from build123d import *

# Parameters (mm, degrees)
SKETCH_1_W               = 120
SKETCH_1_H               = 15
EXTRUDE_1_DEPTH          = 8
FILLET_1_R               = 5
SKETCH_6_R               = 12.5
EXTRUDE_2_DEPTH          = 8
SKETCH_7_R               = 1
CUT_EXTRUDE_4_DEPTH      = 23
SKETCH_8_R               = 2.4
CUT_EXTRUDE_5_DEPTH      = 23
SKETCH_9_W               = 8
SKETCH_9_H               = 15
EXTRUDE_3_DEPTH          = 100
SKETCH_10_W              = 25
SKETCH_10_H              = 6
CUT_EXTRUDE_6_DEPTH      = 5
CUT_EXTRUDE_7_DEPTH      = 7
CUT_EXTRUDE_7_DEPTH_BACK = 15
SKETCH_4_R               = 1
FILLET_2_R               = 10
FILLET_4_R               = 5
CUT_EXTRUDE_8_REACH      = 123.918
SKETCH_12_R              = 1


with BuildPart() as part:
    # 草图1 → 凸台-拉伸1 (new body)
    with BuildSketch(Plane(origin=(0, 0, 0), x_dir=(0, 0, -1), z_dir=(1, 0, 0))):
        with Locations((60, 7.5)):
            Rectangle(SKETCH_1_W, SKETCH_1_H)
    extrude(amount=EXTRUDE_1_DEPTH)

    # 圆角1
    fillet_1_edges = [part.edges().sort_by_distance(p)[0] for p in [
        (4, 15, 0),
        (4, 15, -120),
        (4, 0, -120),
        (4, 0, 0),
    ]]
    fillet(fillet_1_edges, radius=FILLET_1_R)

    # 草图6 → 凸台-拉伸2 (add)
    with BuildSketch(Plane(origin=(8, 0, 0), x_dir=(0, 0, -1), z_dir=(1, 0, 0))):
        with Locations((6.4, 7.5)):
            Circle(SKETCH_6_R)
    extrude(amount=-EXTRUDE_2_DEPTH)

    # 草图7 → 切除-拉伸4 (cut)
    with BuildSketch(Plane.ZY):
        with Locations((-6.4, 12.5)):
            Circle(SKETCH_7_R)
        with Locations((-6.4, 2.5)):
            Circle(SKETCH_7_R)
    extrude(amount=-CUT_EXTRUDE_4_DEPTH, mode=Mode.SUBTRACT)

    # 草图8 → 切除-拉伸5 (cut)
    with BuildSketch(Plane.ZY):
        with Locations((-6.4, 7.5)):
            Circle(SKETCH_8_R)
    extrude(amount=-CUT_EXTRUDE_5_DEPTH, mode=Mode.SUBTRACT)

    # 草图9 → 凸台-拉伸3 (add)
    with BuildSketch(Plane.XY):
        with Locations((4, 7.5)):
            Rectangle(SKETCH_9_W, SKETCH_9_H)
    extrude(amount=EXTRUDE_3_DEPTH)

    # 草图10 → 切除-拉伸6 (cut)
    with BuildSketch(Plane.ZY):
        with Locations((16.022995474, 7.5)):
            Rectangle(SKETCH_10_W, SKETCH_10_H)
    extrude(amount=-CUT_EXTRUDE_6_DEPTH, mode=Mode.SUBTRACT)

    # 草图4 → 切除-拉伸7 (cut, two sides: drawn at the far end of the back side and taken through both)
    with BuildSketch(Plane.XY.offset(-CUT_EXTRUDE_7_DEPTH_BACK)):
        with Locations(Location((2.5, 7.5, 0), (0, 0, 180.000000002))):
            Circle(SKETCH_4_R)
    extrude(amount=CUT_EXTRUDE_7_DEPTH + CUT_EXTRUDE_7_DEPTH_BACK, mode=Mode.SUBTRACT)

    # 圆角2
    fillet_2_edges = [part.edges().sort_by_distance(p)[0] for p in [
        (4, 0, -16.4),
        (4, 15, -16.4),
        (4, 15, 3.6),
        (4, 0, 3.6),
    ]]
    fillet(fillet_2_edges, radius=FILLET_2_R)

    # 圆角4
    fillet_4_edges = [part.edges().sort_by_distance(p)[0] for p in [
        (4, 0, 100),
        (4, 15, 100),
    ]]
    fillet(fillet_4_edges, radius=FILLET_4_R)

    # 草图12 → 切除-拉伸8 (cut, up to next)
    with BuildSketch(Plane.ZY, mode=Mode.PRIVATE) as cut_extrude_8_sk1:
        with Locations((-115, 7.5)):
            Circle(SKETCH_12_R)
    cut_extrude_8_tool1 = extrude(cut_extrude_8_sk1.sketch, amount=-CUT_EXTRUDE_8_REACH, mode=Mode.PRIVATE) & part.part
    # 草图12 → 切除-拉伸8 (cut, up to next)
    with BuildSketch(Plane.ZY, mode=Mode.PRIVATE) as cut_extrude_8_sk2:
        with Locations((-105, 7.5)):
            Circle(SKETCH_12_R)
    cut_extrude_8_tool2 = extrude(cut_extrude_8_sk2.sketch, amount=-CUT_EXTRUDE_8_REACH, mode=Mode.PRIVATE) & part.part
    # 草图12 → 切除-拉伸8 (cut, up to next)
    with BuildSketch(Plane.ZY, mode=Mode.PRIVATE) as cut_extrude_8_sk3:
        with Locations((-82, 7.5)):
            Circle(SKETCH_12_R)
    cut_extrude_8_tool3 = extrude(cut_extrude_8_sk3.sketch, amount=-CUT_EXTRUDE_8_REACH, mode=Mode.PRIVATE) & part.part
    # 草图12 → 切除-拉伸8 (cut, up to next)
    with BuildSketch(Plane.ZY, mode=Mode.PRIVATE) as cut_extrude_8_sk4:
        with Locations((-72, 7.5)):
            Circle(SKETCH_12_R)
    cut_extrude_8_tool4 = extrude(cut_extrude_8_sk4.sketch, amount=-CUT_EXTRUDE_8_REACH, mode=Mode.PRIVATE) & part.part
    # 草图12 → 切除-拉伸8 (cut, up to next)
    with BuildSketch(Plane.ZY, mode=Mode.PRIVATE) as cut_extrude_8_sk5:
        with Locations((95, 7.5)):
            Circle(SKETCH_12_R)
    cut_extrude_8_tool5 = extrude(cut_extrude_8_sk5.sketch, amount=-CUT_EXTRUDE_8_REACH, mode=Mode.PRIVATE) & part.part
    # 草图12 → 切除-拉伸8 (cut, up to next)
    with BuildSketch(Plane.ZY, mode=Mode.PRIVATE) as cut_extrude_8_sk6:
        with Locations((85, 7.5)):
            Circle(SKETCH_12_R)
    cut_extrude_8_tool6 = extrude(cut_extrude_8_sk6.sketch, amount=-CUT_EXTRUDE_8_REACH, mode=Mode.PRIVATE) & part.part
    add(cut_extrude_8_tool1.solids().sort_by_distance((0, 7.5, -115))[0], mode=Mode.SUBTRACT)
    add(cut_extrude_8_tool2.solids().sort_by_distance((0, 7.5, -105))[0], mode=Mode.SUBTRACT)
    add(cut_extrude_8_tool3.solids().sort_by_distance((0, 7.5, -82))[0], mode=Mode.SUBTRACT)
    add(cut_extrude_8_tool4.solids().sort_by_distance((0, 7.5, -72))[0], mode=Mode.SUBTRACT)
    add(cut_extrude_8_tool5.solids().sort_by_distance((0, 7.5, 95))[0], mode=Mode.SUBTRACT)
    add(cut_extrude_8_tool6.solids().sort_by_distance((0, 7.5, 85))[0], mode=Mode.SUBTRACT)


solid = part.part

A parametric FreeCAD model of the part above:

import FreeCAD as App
import Part
import Sketcher

V = App.Vector
Q = App.Units.Quantity


def edges_at(feature, points):
    """Names of the edges that pass closest to the given points."""
    edges = feature.Shape.Edges
    near = lambda p: min(range(len(edges)), key=lambda i: edges[i].distToShape(Part.Vertex(*p))[0])
    return sorted({f"Edge{near(p) + 1}" for p in points})

doc = App.newDocument("Part")
params = doc.addObject("Spreadsheet::Sheet", "Params")
for row, (alias, value) in enumerate([
    ("sketch1_width", "15 mm"),
    ("sketch1_height", "120 mm"),
    ("pad1_length", "8 mm"),
    ("fillet_radius", "5 mm"),
    ("sketch2_diameter", "25 mm"),
    ("pad2_length", "8 mm"),
    ("sketch3_diameter", "2 mm"),
    ("pocket1_length", "23 mm"),
    ("sketch4_diameter", "4.8 mm"),
    ("pocket2_length", "23 mm"),
    ("sketch5_width", "8 mm"),
    ("sketch5_height", "15 mm"),
    ("pad3_length", "100 mm"),
    ("sketch6_width", "6 mm"),
    ("sketch6_height", "25 mm"),
    ("pocket3_length", "5 mm"),
    ("sketch7_diameter", "2 mm"),
    ("pocket4_length", "7 mm"),
    ("pocket4_length2", "15 mm"),
    ("fillet2_radius", "10 mm"),
    ("fillet3_radius", "5 mm"),
    ("sketch8_diameter", "2 mm"),
    ("sketch9_diameter", "2 mm"),
    ("sketch10_diameter", "2 mm"),
    ("sketch11_diameter", "2 mm"),
    ("sketch12_diameter", "2 mm"),
    ("sketch13_diameter", "2 mm"),
], start=1):
    params.set(f"A{row}", alias)
    params.set(f"B{row}", "=" + value)
    params.setAlias(f"B{row}", alias)

body = doc.addObject("PartDesign::Body", "Body")

sketch1 = body.newObject("Sketcher::SketchObject", "Sketch")
sketch1.AttachmentSupport = (doc.getObject("YZ_Plane"), [""])
sketch1.MapMode = "FlatFace"
sketch1.addGeometry([
    Part.LineSegment(V(15, 0, 0), V(0, 0, 0)),
    Part.LineSegment(V(0, 0, 0), V(0, -120, 0)),
    Part.LineSegment(V(0, -120, 0), V(15, -120, 0)),
    Part.LineSegment(V(15, -120, 0), V(15, 0, 0)),
], False)
sketch1.addConstraint([
    Sketcher.Constraint("Coincident", 0, 2, 1, 1),
    Sketcher.Constraint("Coincident", 1, 2, 2, 1),
    Sketcher.Constraint("Coincident", 2, 2, 3, 1),
    Sketcher.Constraint("Coincident", 3, 2, 0, 1),
    Sketcher.Constraint("Horizontal", 0),
    Sketcher.Constraint("Vertical", 1),
    Sketcher.Constraint("Horizontal", 2),
    Sketcher.Constraint("Vertical", 3),
    Sketcher.Constraint("Coincident", 0, 2, -1, 1),
    Sketcher.Constraint("DistanceX", 0, 2, 0, 1, Q("15 mm")),
    Sketcher.Constraint("DistanceY", 1, 2, 1, 1, Q("120 mm")),
])
sketch1.setExpression("Constraints[9]", "Params.sketch1_width")
sketch1.setExpression("Constraints[10]", "Params.sketch1_height")
pad1 = body.newObject("PartDesign::Pad", "Pad")
pad1.Profile = sketch1
pad1.setExpression("Length", "Params.pad1_length")
doc.recompute()

fillet = body.newObject("PartDesign::Fillet", "Fillet")
fillet.Base = (pad1, edges_at(pad1, [
    (4, 15, 0),
    (4, 15, -120),
    (4, 0, -120),
    (4, 0, 0),
]))
fillet.setExpression("Radius", "Params.fillet_radius")

sketch2 = body.newObject("Sketcher::SketchObject", "Sketch001")
sketch2.AttachmentSupport = (doc.getObject("YZ_Plane"), [""])
sketch2.MapMode = "FlatFace"
sketch2.AttachmentOffset = App.Placement(V(0, 0, 8), App.Rotation())
sketch2.addGeometry(Part.Circle(V(8, -6, 0), V(0, 0, 1), 12), False)
sketch2.addConstraint([
    Sketcher.Constraint("Diameter", 0, Q("25 mm")),
    Sketcher.Constraint("DistanceX", -1, 1, 0, 3, Q("7.5 mm")),
    Sketcher.Constraint("DistanceY", 0, 3, -1, 1, Q("6.4 mm")),
])
sketch2.setExpression("Constraints[0]", "Params.sketch2_diameter")
pad2 = body.newObject("PartDesign::Pad", "Pad001")
pad2.Profile = sketch2
pad2.setExpression("Length", "Params.pad2_length")
pad2.Reversed = True

sketch3 = body.newObject("Sketcher::SketchObject", "Sketch002")
sketch3.AttachmentSupport = (doc.getObject("YZ_Plane"), [""])
sketch3.MapMode = "FlatFace"
sketch3.addGeometry([
    Part.Circle(V(12.5, -6.4, 0), V(0, 0, 1), 1),
    Part.Circle(V(2.5, -6.4, 0), V(0, 0, 1), 1),
], False)
sketch3.addConstraint([
    Sketcher.Constraint("Equal", 0, 1),
    Sketcher.Constraint("Horizontal", 0, 3, 1, 3),
    Sketcher.Constraint("Diameter", 0, Q("2 mm")),
    Sketcher.Constraint("DistanceX", 1, 3, 0, 3, Q("10 mm")),
    Sketcher.Constraint("DistanceX", -1, 1, 0, 3, Q("12.5 mm")),
    Sketcher.Constraint("DistanceY", 0, 3, -1, 1, Q("6.4 mm")),
])
sketch3.setExpression("Constraints[2]", "Params.sketch3_diameter")
pocket1 = body.newObject("PartDesign::Pocket", "Pocket")
pocket1.Profile = sketch3
pocket1.setExpression("Length", "Params.pocket1_length")
pocket1.Reversed = True

sketch4 = body.newObject("Sketcher::SketchObject", "Sketch003")
sketch4.AttachmentSupport = (doc.getObject("YZ_Plane"), [""])
sketch4.MapMode = "FlatFace"
sketch4.addGeometry(Part.Circle(V(7.5, -6.4, 0), V(0, 0, 1), 2.4), False)
sketch4.addConstraint([
    Sketcher.Constraint("Diameter", 0, Q("4.8 mm")),
    Sketcher.Constraint("DistanceX", -1, 1, 0, 3, Q("7.5 mm")),
    Sketcher.Constraint("DistanceY", 0, 3, -1, 1, Q("6.4 mm")),
])
sketch4.setExpression("Constraints[0]", "Params.sketch4_diameter")
pocket2 = body.newObject("PartDesign::Pocket", "Pocket001")
pocket2.Profile = sketch4
pocket2.setExpression("Length", "Params.pocket2_length")
pocket2.Reversed = True

sketch5 = body.newObject("Sketcher::SketchObject", "Sketch004")
sketch5.AttachmentSupport = (doc.getObject("XY_Plane"), [""])
sketch5.MapMode = "FlatFace"
sketch5.addGeometry([
    Part.LineSegment(V(0, 15, 0), V(0, 0, 0)),
    Part.LineSegment(V(0, 0, 0), V(8, 0, 0)),
    Part.LineSegment(V(8, 0, 0), V(8, 15, 0)),
    Part.LineSegment(V(8, 15, 0), V(0, 15, 0)),
], False)
sketch5.addConstraint([
    Sketcher.Constraint("Coincident", 0, 2, 1, 1),
    Sketcher.Constraint("Coincident", 1, 2, 2, 1),
    Sketcher.Constraint("Coincident", 2, 2, 3, 1),
    Sketcher.Constraint("Coincident", 3, 2, 0, 1),
    Sketcher.Constraint("Vertical", 0),
    Sketcher.Constraint("Horizontal", 1),
    Sketcher.Constraint("Vertical", 2),
    Sketcher.Constraint("Horizontal", 3),
    Sketcher.Constraint("Coincident", 0, 2, -1, 1),
    Sketcher.Constraint("DistanceX", 1, 1, 1, 2, Q("8 mm")),
    Sketcher.Constraint("DistanceY", 0, 2, 0, 1, Q("15 mm")),
])
sketch5.setExpression("Constraints[9]", "Params.sketch5_width")
sketch5.setExpression("Constraints[10]", "Params.sketch5_height")
pad3 = body.newObject("PartDesign::Pad", "Pad002")
pad3.Profile = sketch5
pad3.setExpression("Length", "Params.pad3_length")

sketch6 = body.newObject("Sketcher::SketchObject", "Sketch005")
sketch6.AttachmentSupport = (doc.getObject("YZ_Plane"), [""])
sketch6.MapMode = "FlatFace"
sketch6.addGeometry([
    Part.LineSegment(V(10, 4, 0), V(4, 4, 0)),
    Part.LineSegment(V(4, 4, 0), V(4, 29, 0)),
    Part.LineSegment(V(4, 29, 0), V(10, 29, 0)),
    Part.LineSegment(V(10, 29, 0), V(10, 4, 0)),
], False)
sketch6.addConstraint([
    Sketcher.Constraint("Coincident", 0, 2, 1, 1),
    Sketcher.Constraint("Coincident", 1, 2, 2, 1),
    Sketcher.Constraint("Coincident", 2, 2, 3, 1),
    Sketcher.Constraint("Coincident", 3, 2, 0, 1),
    Sketcher.Constraint("Horizontal", 0),
    Sketcher.Constraint("Vertical", 1),
    Sketcher.Constraint("Horizontal", 2),
    Sketcher.Constraint("Vertical", 3),
    Sketcher.Constraint("DistanceX", 0, 2, 0, 1, Q("6 mm")),
    Sketcher.Constraint("DistanceY", 1, 1, 1, 2, Q("25 mm")),
    Sketcher.Constraint("DistanceX", -1, 1, 0, 2, Q("4.5 mm")),
    Sketcher.Constraint("DistanceY", -1, 1, 0, 2, Q("3.522995 mm")),
])
sketch6.setExpression("Constraints[8]", "Params.sketch6_width")
sketch6.setExpression("Constraints[9]", "Params.sketch6_height")
pocket3 = body.newObject("PartDesign::Pocket", "Pocket002")
pocket3.Profile = sketch6
pocket3.setExpression("Length", "Params.pocket3_length")
pocket3.Reversed = True

sketch7 = body.newObject("Sketcher::SketchObject", "Sketch006")
sketch7.AttachmentSupport = (doc.getObject("XY_Plane"), [""])
sketch7.MapMode = "FlatFace"
sketch7.addGeometry(Part.Circle(V(2.5, 7.5, 0), V(0, 0, 1), 1), False)
sketch7.addConstraint([
    Sketcher.Constraint("Diameter", 0, Q("2 mm")),
    Sketcher.Constraint("DistanceX", -1, 1, 0, 3, Q("2.5 mm")),
    Sketcher.Constraint("DistanceY", -1, 1, 0, 3, Q("7.5 mm")),
])
sketch7.setExpression("Constraints[0]", "Params.sketch7_diameter")
pocket4 = body.newObject("PartDesign::Pocket", "Pocket003")
pocket4.Profile = sketch7
pocket4.Type = "TwoLengths"
pocket4.setExpression("Length", "Params.pocket4_length")
pocket4.setExpression("Length2", "Params.pocket4_length2")
pocket4.Reversed = True
doc.recompute()

fillet2 = body.newObject("PartDesign::Fillet", "Fillet001")
fillet2.Base = (pocket4, edges_at(pocket4, [
    (4, 0, -16.4),
    (4, 15, -16.4),
    (4, 15, 3.6),
    (4, 0, 3.6),
]))
fillet2.setExpression("Radius", "Params.fillet2_radius")
doc.recompute()

fillet3 = body.newObject("PartDesign::Fillet", "Fillet002")
fillet3.Base = (fillet2, edges_at(fillet2, [(4, 0, 100), (4, 15, 100)]))
fillet3.setExpression("Radius", "Params.fillet3_radius")

sketch8 = body.newObject("Sketcher::SketchObject", "Sketch007")
sketch8.AttachmentSupport = (doc.getObject("YZ_Plane"), [""])
sketch8.MapMode = "FlatFace"
sketch8.addGeometry(Part.Circle(V(7.5, -115, 0), V(0, 0, 1), 1), False)
sketch8.addConstraint([
    Sketcher.Constraint("Diameter", 0, Q("2 mm")),
    Sketcher.Constraint("DistanceY", 0, 3, -1, 1, Q("115 mm")),
    Sketcher.Constraint("DistanceX", -1, 1, 0, 3, Q("7.5 mm")),
])
sketch8.setExpression("Constraints[0]", "Params.sketch8_diameter")
pocket5 = body.newObject("PartDesign::Pocket", "Pocket004")
pocket5.Profile = sketch8
pocket5.Type = "UpToFirst"
pocket5.Reversed = True

sketch9 = body.newObject("Sketcher::SketchObject", "Sketch008")
sketch9.AttachmentSupport = (doc.getObject("YZ_Plane"), [""])
sketch9.MapMode = "FlatFace"
sketch9.addGeometry(Part.Circle(V(7.5, -105, 0), V(0, 0, 1), 1), False)
sketch9.addConstraint([
    Sketcher.Constraint("Diameter", 0, Q("2 mm")),
    Sketcher.Constraint("DistanceY", 0, 3, -1, 1, Q("105 mm")),
    Sketcher.Constraint("DistanceX", -1, 1, 0, 3, Q("7.5 mm")),
])
sketch9.setExpression("Constraints[0]", "Params.sketch9_diameter")
pocket6 = body.newObject("PartDesign::Pocket", "Pocket005")
pocket6.Profile = sketch9
pocket6.Type = "UpToFirst"
pocket6.Reversed = True

sketch10 = body.newObject("Sketcher::SketchObject", "Sketch009")
sketch10.AttachmentSupport = (doc.getObject("YZ_Plane"), [""])
sketch10.MapMode = "FlatFace"
sketch10.addGeometry(Part.Circle(V(7.5, -82, 0), V(0, 0, 1), 1), False)
sketch10.addConstraint([
    Sketcher.Constraint("Diameter", 0, Q("2 mm")),
    Sketcher.Constraint("DistanceY", 0, 3, -1, 1, Q("82 mm")),
    Sketcher.Constraint("DistanceX", -1, 1, 0, 3, Q("7.5 mm")),
])
sketch10.setExpression("Constraints[0]", "Params.sketch10_diameter")
pocket7 = body.newObject("PartDesign::Pocket", "Pocket006")
pocket7.Profile = sketch10
pocket7.Type = "UpToFirst"
pocket7.Reversed = True

sketch11 = body.newObject("Sketcher::SketchObject", "Sketch010")
sketch11.AttachmentSupport = (doc.getObject("YZ_Plane"), [""])
sketch11.MapMode = "FlatFace"
sketch11.addGeometry(Part.Circle(V(7.5, -72, 0), V(0, 0, 1), 1), False)
sketch11.addConstraint([
    Sketcher.Constraint("Diameter", 0, Q("2 mm")),
    Sketcher.Constraint("DistanceY", 0, 3, -1, 1, Q("72 mm")),
    Sketcher.Constraint("DistanceX", -1, 1, 0, 3, Q("7.5 mm")),
])
sketch11.setExpression("Constraints[0]", "Params.sketch11_diameter")
pocket8 = body.newObject("PartDesign::Pocket", "Pocket007")
pocket8.Profile = sketch11
pocket8.Type = "UpToFirst"
pocket8.Reversed = True

sketch12 = body.newObject("Sketcher::SketchObject", "Sketch011")
sketch12.AttachmentSupport = (doc.getObject("YZ_Plane"), [""])
sketch12.MapMode = "FlatFace"
sketch12.addGeometry(Part.Circle(V(7.5, 95, 0), V(0, 0, 1), 1), False)
sketch12.addConstraint([
    Sketcher.Constraint("Diameter", 0, Q("2 mm")),
    Sketcher.Constraint("DistanceY", -1, 1, 0, 3, Q("95 mm")),
    Sketcher.Constraint("DistanceX", -1, 1, 0, 3, Q("7.5 mm")),
])
sketch12.setExpression("Constraints[0]", "Params.sketch12_diameter")
pocket9 = body.newObject("PartDesign::Pocket", "Pocket008")
pocket9.Profile = sketch12
pocket9.Type = "UpToFirst"
pocket9.Reversed = True

sketch13 = body.newObject("Sketcher::SketchObject", "Sketch012")
sketch13.AttachmentSupport = (doc.getObject("YZ_Plane"), [""])
sketch13.MapMode = "FlatFace"
sketch13.addGeometry(Part.Circle(V(7.5, 85, 0), V(0, 0, 1), 1), False)
sketch13.addConstraint([
    Sketcher.Constraint("Diameter", 0, Q("2 mm")),
    Sketcher.Constraint("DistanceY", -1, 1, 0, 3, Q("85 mm")),
    Sketcher.Constraint("DistanceX", -1, 1, 0, 3, Q("7.5 mm")),
])
sketch13.setExpression("Constraints[0]", "Params.sketch13_diameter")
pocket10 = body.newObject("PartDesign::Pocket", "Pocket009")
pocket10.Profile = sketch13
pocket10.Type = "UpToFirst"
pocket10.Reversed = True

doc.recompute()
